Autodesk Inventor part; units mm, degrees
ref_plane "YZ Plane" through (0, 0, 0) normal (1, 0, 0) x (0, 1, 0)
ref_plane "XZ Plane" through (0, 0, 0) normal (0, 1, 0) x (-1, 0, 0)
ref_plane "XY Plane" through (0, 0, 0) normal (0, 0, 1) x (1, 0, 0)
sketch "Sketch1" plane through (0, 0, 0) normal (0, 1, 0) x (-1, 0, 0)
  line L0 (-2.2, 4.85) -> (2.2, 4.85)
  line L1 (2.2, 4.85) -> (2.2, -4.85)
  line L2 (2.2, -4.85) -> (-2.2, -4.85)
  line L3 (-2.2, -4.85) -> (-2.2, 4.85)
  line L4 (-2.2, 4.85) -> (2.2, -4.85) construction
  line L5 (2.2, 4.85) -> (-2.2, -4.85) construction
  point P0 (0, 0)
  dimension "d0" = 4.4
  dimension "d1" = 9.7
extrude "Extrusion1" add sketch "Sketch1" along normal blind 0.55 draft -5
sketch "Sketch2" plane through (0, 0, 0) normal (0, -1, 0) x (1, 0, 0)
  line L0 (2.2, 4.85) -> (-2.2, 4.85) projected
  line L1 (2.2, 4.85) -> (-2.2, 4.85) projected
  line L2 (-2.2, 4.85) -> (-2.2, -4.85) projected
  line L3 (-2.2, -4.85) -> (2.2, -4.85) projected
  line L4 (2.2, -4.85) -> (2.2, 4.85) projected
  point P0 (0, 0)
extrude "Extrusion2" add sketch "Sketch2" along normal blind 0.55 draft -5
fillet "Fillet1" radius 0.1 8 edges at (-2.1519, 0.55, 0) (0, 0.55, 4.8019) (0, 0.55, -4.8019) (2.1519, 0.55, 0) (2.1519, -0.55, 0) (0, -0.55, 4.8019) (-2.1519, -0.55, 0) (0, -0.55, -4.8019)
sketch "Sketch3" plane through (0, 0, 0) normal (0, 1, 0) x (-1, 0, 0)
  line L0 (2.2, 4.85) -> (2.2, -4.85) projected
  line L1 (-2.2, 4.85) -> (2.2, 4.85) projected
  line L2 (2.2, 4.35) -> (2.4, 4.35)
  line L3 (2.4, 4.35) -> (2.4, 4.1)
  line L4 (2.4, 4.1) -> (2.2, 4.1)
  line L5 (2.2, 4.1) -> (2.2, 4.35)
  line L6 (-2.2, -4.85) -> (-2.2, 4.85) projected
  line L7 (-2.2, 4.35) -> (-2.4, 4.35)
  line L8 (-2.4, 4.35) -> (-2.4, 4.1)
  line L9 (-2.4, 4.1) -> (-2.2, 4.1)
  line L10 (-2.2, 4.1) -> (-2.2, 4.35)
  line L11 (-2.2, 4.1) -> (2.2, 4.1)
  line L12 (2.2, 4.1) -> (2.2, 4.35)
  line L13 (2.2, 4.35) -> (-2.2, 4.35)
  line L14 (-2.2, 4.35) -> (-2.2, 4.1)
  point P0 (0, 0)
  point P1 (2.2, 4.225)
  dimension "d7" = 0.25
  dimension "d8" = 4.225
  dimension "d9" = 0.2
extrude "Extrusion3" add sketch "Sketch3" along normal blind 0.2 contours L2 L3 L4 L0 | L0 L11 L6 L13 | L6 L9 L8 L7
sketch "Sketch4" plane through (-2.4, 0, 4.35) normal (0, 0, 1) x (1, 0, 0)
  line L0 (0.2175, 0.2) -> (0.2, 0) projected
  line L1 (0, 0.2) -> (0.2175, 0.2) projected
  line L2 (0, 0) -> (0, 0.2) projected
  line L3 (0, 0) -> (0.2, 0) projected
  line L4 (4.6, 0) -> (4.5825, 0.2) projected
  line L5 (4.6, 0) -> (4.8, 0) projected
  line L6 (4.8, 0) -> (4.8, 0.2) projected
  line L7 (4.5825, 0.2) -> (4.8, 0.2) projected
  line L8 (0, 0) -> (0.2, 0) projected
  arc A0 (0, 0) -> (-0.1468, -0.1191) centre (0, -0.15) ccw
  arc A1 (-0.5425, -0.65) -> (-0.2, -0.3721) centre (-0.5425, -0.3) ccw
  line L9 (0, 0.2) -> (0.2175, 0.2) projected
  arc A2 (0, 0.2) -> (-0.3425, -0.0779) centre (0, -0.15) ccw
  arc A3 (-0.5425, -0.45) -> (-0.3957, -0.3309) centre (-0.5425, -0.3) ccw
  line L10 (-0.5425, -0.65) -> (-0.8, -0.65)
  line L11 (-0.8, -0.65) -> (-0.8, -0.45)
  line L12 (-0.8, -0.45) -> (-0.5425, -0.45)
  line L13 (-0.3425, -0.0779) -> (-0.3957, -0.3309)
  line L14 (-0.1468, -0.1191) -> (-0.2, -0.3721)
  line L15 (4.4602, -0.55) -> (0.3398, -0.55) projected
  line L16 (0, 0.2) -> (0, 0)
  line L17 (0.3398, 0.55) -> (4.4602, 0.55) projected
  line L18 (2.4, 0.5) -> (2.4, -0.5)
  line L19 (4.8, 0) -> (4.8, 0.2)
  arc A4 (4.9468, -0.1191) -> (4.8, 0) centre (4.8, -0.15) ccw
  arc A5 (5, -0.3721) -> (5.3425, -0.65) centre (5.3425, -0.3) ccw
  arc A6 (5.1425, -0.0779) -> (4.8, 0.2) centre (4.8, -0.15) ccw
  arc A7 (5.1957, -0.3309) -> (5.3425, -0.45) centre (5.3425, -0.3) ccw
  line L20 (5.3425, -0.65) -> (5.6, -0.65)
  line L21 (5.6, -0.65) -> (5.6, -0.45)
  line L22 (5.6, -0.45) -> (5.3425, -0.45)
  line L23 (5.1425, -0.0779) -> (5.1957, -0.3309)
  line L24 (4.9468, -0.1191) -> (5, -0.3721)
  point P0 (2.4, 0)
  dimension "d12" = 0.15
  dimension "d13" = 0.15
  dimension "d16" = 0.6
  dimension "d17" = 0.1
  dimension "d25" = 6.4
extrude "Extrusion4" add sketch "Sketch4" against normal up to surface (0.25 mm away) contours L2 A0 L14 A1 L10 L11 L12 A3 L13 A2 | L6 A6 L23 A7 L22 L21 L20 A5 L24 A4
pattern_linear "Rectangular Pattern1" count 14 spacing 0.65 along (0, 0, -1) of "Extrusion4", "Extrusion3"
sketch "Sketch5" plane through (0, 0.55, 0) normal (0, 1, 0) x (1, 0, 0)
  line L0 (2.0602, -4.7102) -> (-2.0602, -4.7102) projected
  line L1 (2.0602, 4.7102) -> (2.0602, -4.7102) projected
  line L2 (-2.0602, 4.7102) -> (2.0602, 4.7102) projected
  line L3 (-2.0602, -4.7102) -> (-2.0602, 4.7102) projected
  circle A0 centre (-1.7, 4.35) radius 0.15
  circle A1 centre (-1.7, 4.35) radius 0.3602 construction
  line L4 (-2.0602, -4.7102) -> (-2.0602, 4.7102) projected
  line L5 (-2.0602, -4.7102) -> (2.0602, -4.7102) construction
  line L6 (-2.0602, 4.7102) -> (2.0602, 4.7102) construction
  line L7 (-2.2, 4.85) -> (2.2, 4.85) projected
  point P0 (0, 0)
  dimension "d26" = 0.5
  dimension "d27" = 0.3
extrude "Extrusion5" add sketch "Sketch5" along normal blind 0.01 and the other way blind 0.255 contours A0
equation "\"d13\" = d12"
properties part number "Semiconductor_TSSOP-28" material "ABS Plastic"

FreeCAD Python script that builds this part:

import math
import FreeCAD as App
import Part
import Sketcher


def edges_at(feature, points):
    """Names of the edges that pass closest to the given points."""
    edges = feature.Shape.Edges
    near = lambda p: min(range(len(edges)), key=lambda i: edges[i].distToShape(Part.Vertex(*p))[0])
    return sorted({f"Edge{near(p) + 1}" for p in points})

doc = App.newDocument("Part")
params = doc.addObject("Spreadsheet::Sheet", "Params")
for row, (alias, value) in enumerate([
    ("sketch1_width", "4.4 mm"),
    ("sketch1_height", "9.7 mm"),
    ("pad1_length", "0.55 mm"),
    ("pad1_taper", "-5 deg"),
    ("sketch2_width", "4.4 mm"),
    ("sketch2_height", "9.7 mm"),
    ("pad2_length", "0.55 mm"),
    ("pad2_taper", "-5 deg"),
    ("fillet_radius", "0.1 mm"),
    ("sketch3_height", "0.25 mm"),
    ("sketch3_width", "4.8 mm"),
    ("pad3_length", "0.2 mm"),
    ("sketch4_radius", "0.15 mm"),
    ("sketch4_radius2", "0.35 mm"),
    ("pad4_length", "0.25 mm"),
    ("linearpattern_pitch", "0.65 mm"),
    ("sketch5_diameter", "0.3 mm"),
    ("pad5_length", "0.01 mm"),
    ("pad5_length2", "0.255 mm"),
], start=1):
    params.set(f"A{row}", alias)
    params.set(f"B{row}", "=" + value)
    params.setAlias(f"B{row}", alias)

body = doc.addObject("PartDesign::Body", "Body")

sketch1 = body.newObject("Sketcher::SketchObject", "Sketch")
sketch1.AttachmentSupport = (doc.getObject("XZ_Plane"), [""])
sketch1.MapMode = "FlatFace"
sketch1.addGeometry(Part.LineSegment(App.Vector(-2.2, 4.8, 0), App.Vector(2.2, 4.8, 0)), False)
sketch1.addGeometry(Part.LineSegment(App.Vector(2.2, 4.8, 0), App.Vector(2.2, -4.8, 0)), False)
sketch1.addGeometry(Part.LineSegment(App.Vector(2.2, -4.8, 0), App.Vector(-2.2, -4.8, 0)), False)
sketch1.addGeometry(Part.LineSegment(App.Vector(-2.2, -4.8, 0), App.Vector(-2.2, 4.8, 0)), False)
sketch1.addConstraint(Sketcher.Constraint("Coincident", 0, 2, 1, 1))
sketch1.addConstraint(Sketcher.Constraint("Coincident", 1, 2, 2, 1))
sketch1.addConstraint(Sketcher.Constraint("Coincident", 2, 2, 3, 1))
sketch1.addConstraint(Sketcher.Constraint("Coincident", 3, 2, 0, 1))
sketch1.addConstraint(Sketcher.Constraint("Horizontal", 0))
sketch1.addConstraint(Sketcher.Constraint("Vertical", 1))
sketch1.addConstraint(Sketcher.Constraint("Horizontal", 2))
sketch1.addConstraint(Sketcher.Constraint("Vertical", 3))
sketch1.addConstraint(Sketcher.Constraint("Symmetric", 0, 2, 2, 2, -1, 1))
sketch1.addConstraint(Sketcher.Constraint("DistanceX", 0, 1, 0, 2, 4.4))
sketch1.addConstraint(Sketcher.Constraint("DistanceY", 1, 2, 1, 1, 9.7))
sketch1.setExpression("Constraints[9]", "Params.sketch1_width")
sketch1.setExpression("Constraints[10]", "Params.sketch1_height")
pad1 = body.newObject("PartDesign::Pad", "Pad")
pad1.Profile = sketch1
pad1.setExpression("Length", "Params.pad1_length")
pad1.Reversed = True
pad1.setExpression("TaperAngle", "Params.pad1_taper")

sketch2 = body.newObject("Sketcher::SketchObject", "Sketch001")
sketch2.AttachmentSupport = (doc.getObject("XZ_Plane"), [""])
sketch2.MapMode = "FlatFace"
sketch2.addGeometry(Part.LineSegment(App.Vector(2.2, -4.8, 0), App.Vector(2.2, 4.8, 0)), False)
sketch2.addGeometry(Part.LineSegment(App.Vector(2.2, 4.8, 0), App.Vector(-2.2, 4.8, 0)), False)
sketch2.addGeometry(Part.LineSegment(App.Vector(-2.2, 4.8, 0), App.Vector(-2.2, -4.8, 0)), False)
sketch2.addGeometry(Part.LineSegment(App.Vector(-2.2, -4.8, 0), App.Vector(2.2, -4.8, 0)), False)
sketch2.addConstraint(Sketcher.Constraint("Coincident", 0, 2, 1, 1))
sketch2.addConstraint(Sketcher.Constraint("Coincident", 1, 2, 2, 1))
sketch2.addConstraint(Sketcher.Constraint("Coincident", 2, 2, 3, 1))
sketch2.addConstraint(Sketcher.Constraint("Coincident", 3, 2, 0, 1))
sketch2.addConstraint(Sketcher.Constraint("Vertical", 0))
sketch2.addConstraint(Sketcher.Constraint("Horizontal", 1))
sketch2.addConstraint(Sketcher.Constraint("Vertical", 2))
sketch2.addConstraint(Sketcher.Constraint("Horizontal", 3))
sketch2.addConstraint(Sketcher.Constraint("Symmetric", 0, 2, 2, 2, -1, 1))
sketch2.addConstraint(Sketcher.Constraint("DistanceX", 1, 2, 1, 1, 4.4))
sketch2.addConstraint(Sketcher.Constraint("DistanceY", 0, 1, 0, 2, 9.7))
sketch2.setExpression("Constraints[9]", "Params.sketch2_width")
sketch2.setExpression("Constraints[10]", "Params.sketch2_height")
pad2 = body.newObject("PartDesign::Pad", "Pad001")
pad2.Profile = sketch2
pad2.setExpression("Length", "Params.pad2_length")
pad2.setExpression("TaperAngle", "Params.pad2_taper")
doc.recompute()

fillet = body.newObject("PartDesign::Fillet", "Fillet")
fillet.Base = (pad2, edges_at(pad2, [
    (-2.152, 0.55, 0),
    (0, 0.55, 4.802),
    (0, 0.55, -4.802),
    (2.152, 0.55, 0),
    (2.152, -0.55, 0),
    (0, -0.55, 4.802),
    (-2.152, -0.55, 0),
    (0, -0.55, -4.802),
]))
fillet.setExpression("Radius", "Params.fillet_radius")

sketch3 = body.newObject("Sketcher::SketchObject", "Sketch002")
sketch3.AttachmentSupport = (doc.getObject("XZ_Plane"), [""])
sketch3.MapMode = "FlatFace"
sketch3.addGeometry(Part.LineSegment(App.Vector(-2.4, 4.35, 0), App.Vector(2.4, 4.35, 0)), False)
sketch3.addGeometry(Part.LineSegment(App.Vector(2.4, 4.35, 0), App.Vector(2.4, 4.1, 0)), False)
sketch3.addGeometry(Part.LineSegment(App.Vector(2.4, 4.1, 0), App.Vector(-2.4, 4.1, 0)), False)
sketch3.addGeometry(Part.LineSegment(App.Vector(-2.4, 4.1, 0), App.Vector(-2.4, 4.35, 0)), False)
sketch3.addConstraint(Sketcher.Constraint("Coincident", 0, 2, 1, 1))
sketch3.addConstraint(Sketcher.Constraint("Coincident", 1, 2, 2, 1))
sketch3.addConstraint(Sketcher.Constraint("Coincident", 2, 2, 3, 1))
sketch3.addConstraint(Sketcher.Constraint("Coincident", 3, 2, 0, 1))
sketch3.addConstraint(Sketcher.Constraint("Horizontal", 0))
sketch3.addConstraint(Sketcher.Constraint("Vertical", 1))
sketch3.addConstraint(Sketcher.Constraint("Horizontal", 2))
sketch3.addConstraint(Sketcher.Constraint("Vertical", 3))
sketch3.addConstraint(Sketcher.Constraint("DistanceY", 1, 2, 1, 1, 0.25))
sketch3.addConstraint(Sketcher.Constraint("DistanceX", 0, 1, 0, 2, 4.8))
sketch3.addConstraint(Sketcher.Constraint("DistanceX", -1, 1, 0, 2, 2.4))
sketch3.addConstraint(Sketcher.Constraint("DistanceY", -1, 1, 1, 2, 4.1))
sketch3.setExpression("Constraints[8]", "Params.sketch3_height")
sketch3.setExpression("Constraints[9]", "Params.sketch3_width")
pad3 = body.newObject("PartDesign::Pad", "Pad002")
pad3.Profile = sketch3
pad3.setExpression("Length", "Params.pad3_length")
pad3.Reversed = True

sketch4 = body.newObject("Sketcher::SketchObject", "Sketch003")
sketch4.AttachmentSupport = (doc.getObject("XY_Plane"), [""])
sketch4.MapMode = "FlatFace"
sketch4.AttachmentOffset = App.Placement(App.Vector(0, 0, 4.35), App.Rotation())
sketch4.addGeometry(Part.LineSegment(App.Vector(-2.4, 0, 0), App.Vector(-2.4, 0.2, 0)), False)
sketch4.addGeometry(Part.ArcOfCircle(Part.Circle(App.Vector(-2.4, -0.15, 0), App.Vector(0, 0, 1), 0.35), math.radians(90), math.radians(168)), False)
sketch4.addGeometry(Part.LineSegment(App.Vector(-2.74, -0.08, 0), App.Vector(-2.8, -0.33, 0)), False)
sketch4.addGeometry(Part.ArcOfCircle(Part.Circle(App.Vector(-2.94, -0.3, 0), App.Vector(0, 0, 1), 0.15), math.radians(-90), math.radians(-12)), False)
sketch4.addGeometry(Part.LineSegment(App.Vector(-2.94, -0.45, 0), App.Vector(-3.2, -0.45, 0)), False)
sketch4.addGeometry(Part.LineSegment(App.Vector(-3.2, -0.45, 0), App.Vector(-3.2, -0.65, 0)), False)
sketch4.addGeometry(Part.LineSegment(App.Vector(-3.2, -0.65, 0), App.Vector(-2.94, -0.65, 0)), False)
sketch4.addGeometry(Part.ArcOfCircle(Part.Circle(App.Vector(-2.94, -0.3, 0), App.Vector(0, 0, 1), 0.35), math.radians(-90), math.radians(-12)), False)
sketch4.addGeometry(Part.LineSegment(App.Vector(-2.6, -0.37, 0), App.Vector(-2.55, -0.12, 0)), False)
sketch4.addGeometry(Part.ArcOfCircle(Part.Circle(App.Vector(-2.4, -0.15, 0), App.Vector(0, 0, 1), 0.15), math.radians(90), math.radians(168)), False)
sketch4.addGeometry(Part.LineSegment(App.Vector(2.4, 0.2, 0), App.Vector(2.4, 0, 0)), False)
sketch4.addGeometry(Part.ArcOfCircle(Part.Circle(App.Vector(2.4, -0.15, 0), App.Vector(0, 0, 1), 0.15), math.radians(12), math.radians(90)), False)
sketch4.addGeometry(Part.LineSegment(App.Vector(2.55, -0.12, 0), App.Vector(2.6, -0.37, 0)), False)
sketch4.addGeometry(Part.ArcOfCircle(Part.Circle(App.Vector(2.94, -0.3, 0), App.Vector(0, 0, 1), 0.35), math.radians(-168), math.radians(-90)), False)
sketch4.addGeometry(Part.LineSegment(App.Vector(2.94, -0.65, 0), App.Vector(3.2, -0.65, 0)), False)
sketch4.addGeometry(Part.LineSegment(App.Vector(3.2, -0.65, 0), App.Vector(3.2, -0.45, 0)), False)
sketch4.addGeometry(Part.LineSegment(App.Vector(3.2, -0.45, 0), App.Vector(2.94, -0.45, 0)), False)
sketch4.addGeometry(Part.ArcOfCircle(Part.Circle(App.Vector(2.94, -0.3, 0), App.Vector(0, 0, 1), 0.15), math.radians(-168), math.radians(-90)), False)
sketch4.addGeometry(Part.LineSegment(App.Vector(2.8, -0.33, 0), App.Vector(2.74, -0.08, 0)), False)
sketch4.addGeometry(Part.ArcOfCircle(Part.Circle(App.Vector(2.4, -0.15, 0), App.Vector(0, 0, 1), 0.35), math.radians(12), math.radians(90)), False)
sketch4.addConstraint(Sketcher.Constraint("Coincident", 0, 2, 1, 1))
sketch4.addConstraint(Sketcher.Constraint("Tangent", 1, 2, 2, 1))
sketch4.addConstraint(Sketcher.Constraint("Tangent", 2, 2, 3, 2))
sketch4.addConstraint(Sketcher.Constraint("Tangent", 3, 1, 4, 1))
sketch4.addConstraint(Sketcher.Constraint("Coincident", 4, 2, 5, 1))
sketch4.addConstraint(Sketcher.Constraint("Coincident", 5, 2, 6, 1))
sketch4.addConstraint(Sketcher.Constraint("Tangent", 6, 2, 7, 1))
sketch4.addConstraint(Sketcher.Constraint("Tangent", 7, 2, 8, 1))
sketch4.addConstraint(Sketcher.Constraint("Tangent", 8, 2, 9, 2))
sketch4.addConstraint(Sketcher.Constraint("Coincident", 9, 1, 0, 1))
sketch4.addConstraint(Sketcher.Constraint("Coincident", 10, 2, 11, 2))
sketch4.addConstraint(Sketcher.Constraint("Tangent", 11, 1, 12, 1))
sketch4.addConstraint(Sketcher.Constraint("Tangent", 12, 2, 13, 1))
sketch4.addConstraint(Sketcher.Constraint("Tangent", 13, 2, 14, 1))
sketch4.addConstraint(Sketcher.Constraint("Coincident", 14, 2, 15, 1))
sketch4.addConstraint(Sketcher.Constraint("Coincident", 15, 2, 16, 1))
sketch4.addConstraint(Sketcher.Constraint("Tangent", 16, 2, 17, 2))
sketch4.addConstraint(Sketcher.Constraint("Tangent", 17, 1, 18, 1))
sketch4.addConstraint(Sketcher.Constraint("Tangent", 18, 2, 19, 1))
sketch4.addConstraint(Sketcher.Constraint("Coincident", 19, 2, 10, 1))
sketch4.addConstraint(Sketcher.Constraint("Vertical", 0))
sketch4.addConstraint(Sketcher.Constraint("Horizontal", 4))
sketch4.addConstraint(Sketcher.Constraint("Vertical", 5))
sketch4.addConstraint(Sketcher.Constraint("Horizontal", 6))
sketch4.addConstraint(Sketcher.Constraint("Vertical", 10))
sketch4.addConstraint(Sketcher.Constraint("Horizontal", 14))
sketch4.addConstraint(Sketcher.Constraint("Vertical", 15))
sketch4.addConstraint(Sketcher.Constraint("Horizontal", 16))
sketch4.addConstraint(Sketcher.Constraint("Coincident", 7, 3, 3, 3))
sketch4.addConstraint(Sketcher.Constraint("Coincident", 9, 3, 1, 3))
sketch4.addConstraint(Sketcher.Constraint("Coincident", 17, 3, 13, 3))
sketch4.addConstraint(Sketcher.Constraint("Coincident", 19, 3, 11, 3))
sketch4.addConstraint(Sketcher.Constraint("Equal", 1, 7))
sketch4.addConstraint(Sketcher.Constraint("Equal", 3, 9))
sketch4.addConstraint(Sketcher.Constraint("Equal", 9, 11))
sketch4.addConstraint(Sketcher.Constraint("Equal", 7, 13))
sketch4.addConstraint(Sketcher.Constraint("Equal", 11, 17))
sketch4.addConstraint(Sketcher.Constraint("Equal", 13, 19))
sketch4.addConstraint(Sketcher.Constraint("Symmetric", 9, 1, 10, 2, -1, 1))
sketch4.addConstraint(Sketcher.Constraint("Symmetric", 1, 3, 11, 3, -2))
sketch4.addConstraint(Sketcher.Constraint("Symmetric", 3, 3, 13, 3, -2))
sketch4.addConstraint(Sketcher.Constraint("Vertical", 9, 3, 0, 2))
sketch4.addConstraint(Sketcher.Constraint("Equal", 6, 14))
sketch4.addConstraint(Sketcher.Constraint("Radius", 3, 0.15))
sketch4.addConstraint(Sketcher.Constraint("DistanceX", 12, 2, 14, 2, 0.6))
sketch4.addConstraint(Sketcher.Constraint("Radius", 1, 0.35))
sketch4.addConstraint(Sketcher.Constraint("DistanceY", 3, 3, 1, 3, 0.15))
sketch4.addConstraint(Sketcher.Constraint("DistanceX", 1, 3, -1, 1, 2.4))
sketch4.addConstraint(Sketcher.Constraint("DistanceX", 4, 2, -1, 1, 3.2))
sketch4.setExpression("Constraints[43]", "Params.sketch4_radius")
sketch4.setExpression("Constraints[45]", "Params.sketch4_radius2")
pad4 = body.newObject("PartDesign::Pad", "Pad003")
pad4.Profile = sketch4
pad4.setExpression("Length", "Params.pad4_length")
pad4.Reversed = True
doc.recompute()

linearpattern = body.newObject("PartDesign::LinearPattern", "LinearPattern")
linearpattern.Originals = [pad4, pad3]
linearpattern.Direction = (doc.getObject("Z_Axis"), [""])
linearpattern.Mode = "offset"
linearpattern.setExpression("Offset", "Params.linearpattern_pitch")
linearpattern.Occurrences = 14
linearpattern.Reversed = True
body.Tip = linearpattern

sketch5 = body.newObject("Sketcher::SketchObject", "Sketch004")
sketch5.AttachmentSupport = (doc.getObject("XZ_Plane"), [""])
sketch5.MapMode = "FlatFace"
sketch5.AttachmentOffset = App.Placement(App.Vector(0, 0, -0.55), App.Rotation())
sketch5.addGeometry(Part.Circle(App.Vector(-1.7, -4.35, 0), App.Vector(0, 0, 1), 0.15), False)
sketch5.addConstraint(Sketcher.Constraint("Diameter", 0, 0.3))
sketch5.addConstraint(Sketcher.Constraint("DistanceX", 0, 3, -1, 1, 1.7))
sketch5.addConstraint(Sketcher.Constraint("DistanceY", 0, 3, -1, 1, 4.35))
sketch5.setExpression("Constraints[0]", "Params.sketch5_diameter")
pad5 = body.newObject("PartDesign::Pad", "Pad004")
pad5.Profile = sketch5
pad5.Type = "TwoLengths"
pad5.setExpression("Length", "Params.pad5_length")
pad5.setExpression("Length2", "Params.pad5_length2")
pad5.Reversed = True

doc.recompute()
